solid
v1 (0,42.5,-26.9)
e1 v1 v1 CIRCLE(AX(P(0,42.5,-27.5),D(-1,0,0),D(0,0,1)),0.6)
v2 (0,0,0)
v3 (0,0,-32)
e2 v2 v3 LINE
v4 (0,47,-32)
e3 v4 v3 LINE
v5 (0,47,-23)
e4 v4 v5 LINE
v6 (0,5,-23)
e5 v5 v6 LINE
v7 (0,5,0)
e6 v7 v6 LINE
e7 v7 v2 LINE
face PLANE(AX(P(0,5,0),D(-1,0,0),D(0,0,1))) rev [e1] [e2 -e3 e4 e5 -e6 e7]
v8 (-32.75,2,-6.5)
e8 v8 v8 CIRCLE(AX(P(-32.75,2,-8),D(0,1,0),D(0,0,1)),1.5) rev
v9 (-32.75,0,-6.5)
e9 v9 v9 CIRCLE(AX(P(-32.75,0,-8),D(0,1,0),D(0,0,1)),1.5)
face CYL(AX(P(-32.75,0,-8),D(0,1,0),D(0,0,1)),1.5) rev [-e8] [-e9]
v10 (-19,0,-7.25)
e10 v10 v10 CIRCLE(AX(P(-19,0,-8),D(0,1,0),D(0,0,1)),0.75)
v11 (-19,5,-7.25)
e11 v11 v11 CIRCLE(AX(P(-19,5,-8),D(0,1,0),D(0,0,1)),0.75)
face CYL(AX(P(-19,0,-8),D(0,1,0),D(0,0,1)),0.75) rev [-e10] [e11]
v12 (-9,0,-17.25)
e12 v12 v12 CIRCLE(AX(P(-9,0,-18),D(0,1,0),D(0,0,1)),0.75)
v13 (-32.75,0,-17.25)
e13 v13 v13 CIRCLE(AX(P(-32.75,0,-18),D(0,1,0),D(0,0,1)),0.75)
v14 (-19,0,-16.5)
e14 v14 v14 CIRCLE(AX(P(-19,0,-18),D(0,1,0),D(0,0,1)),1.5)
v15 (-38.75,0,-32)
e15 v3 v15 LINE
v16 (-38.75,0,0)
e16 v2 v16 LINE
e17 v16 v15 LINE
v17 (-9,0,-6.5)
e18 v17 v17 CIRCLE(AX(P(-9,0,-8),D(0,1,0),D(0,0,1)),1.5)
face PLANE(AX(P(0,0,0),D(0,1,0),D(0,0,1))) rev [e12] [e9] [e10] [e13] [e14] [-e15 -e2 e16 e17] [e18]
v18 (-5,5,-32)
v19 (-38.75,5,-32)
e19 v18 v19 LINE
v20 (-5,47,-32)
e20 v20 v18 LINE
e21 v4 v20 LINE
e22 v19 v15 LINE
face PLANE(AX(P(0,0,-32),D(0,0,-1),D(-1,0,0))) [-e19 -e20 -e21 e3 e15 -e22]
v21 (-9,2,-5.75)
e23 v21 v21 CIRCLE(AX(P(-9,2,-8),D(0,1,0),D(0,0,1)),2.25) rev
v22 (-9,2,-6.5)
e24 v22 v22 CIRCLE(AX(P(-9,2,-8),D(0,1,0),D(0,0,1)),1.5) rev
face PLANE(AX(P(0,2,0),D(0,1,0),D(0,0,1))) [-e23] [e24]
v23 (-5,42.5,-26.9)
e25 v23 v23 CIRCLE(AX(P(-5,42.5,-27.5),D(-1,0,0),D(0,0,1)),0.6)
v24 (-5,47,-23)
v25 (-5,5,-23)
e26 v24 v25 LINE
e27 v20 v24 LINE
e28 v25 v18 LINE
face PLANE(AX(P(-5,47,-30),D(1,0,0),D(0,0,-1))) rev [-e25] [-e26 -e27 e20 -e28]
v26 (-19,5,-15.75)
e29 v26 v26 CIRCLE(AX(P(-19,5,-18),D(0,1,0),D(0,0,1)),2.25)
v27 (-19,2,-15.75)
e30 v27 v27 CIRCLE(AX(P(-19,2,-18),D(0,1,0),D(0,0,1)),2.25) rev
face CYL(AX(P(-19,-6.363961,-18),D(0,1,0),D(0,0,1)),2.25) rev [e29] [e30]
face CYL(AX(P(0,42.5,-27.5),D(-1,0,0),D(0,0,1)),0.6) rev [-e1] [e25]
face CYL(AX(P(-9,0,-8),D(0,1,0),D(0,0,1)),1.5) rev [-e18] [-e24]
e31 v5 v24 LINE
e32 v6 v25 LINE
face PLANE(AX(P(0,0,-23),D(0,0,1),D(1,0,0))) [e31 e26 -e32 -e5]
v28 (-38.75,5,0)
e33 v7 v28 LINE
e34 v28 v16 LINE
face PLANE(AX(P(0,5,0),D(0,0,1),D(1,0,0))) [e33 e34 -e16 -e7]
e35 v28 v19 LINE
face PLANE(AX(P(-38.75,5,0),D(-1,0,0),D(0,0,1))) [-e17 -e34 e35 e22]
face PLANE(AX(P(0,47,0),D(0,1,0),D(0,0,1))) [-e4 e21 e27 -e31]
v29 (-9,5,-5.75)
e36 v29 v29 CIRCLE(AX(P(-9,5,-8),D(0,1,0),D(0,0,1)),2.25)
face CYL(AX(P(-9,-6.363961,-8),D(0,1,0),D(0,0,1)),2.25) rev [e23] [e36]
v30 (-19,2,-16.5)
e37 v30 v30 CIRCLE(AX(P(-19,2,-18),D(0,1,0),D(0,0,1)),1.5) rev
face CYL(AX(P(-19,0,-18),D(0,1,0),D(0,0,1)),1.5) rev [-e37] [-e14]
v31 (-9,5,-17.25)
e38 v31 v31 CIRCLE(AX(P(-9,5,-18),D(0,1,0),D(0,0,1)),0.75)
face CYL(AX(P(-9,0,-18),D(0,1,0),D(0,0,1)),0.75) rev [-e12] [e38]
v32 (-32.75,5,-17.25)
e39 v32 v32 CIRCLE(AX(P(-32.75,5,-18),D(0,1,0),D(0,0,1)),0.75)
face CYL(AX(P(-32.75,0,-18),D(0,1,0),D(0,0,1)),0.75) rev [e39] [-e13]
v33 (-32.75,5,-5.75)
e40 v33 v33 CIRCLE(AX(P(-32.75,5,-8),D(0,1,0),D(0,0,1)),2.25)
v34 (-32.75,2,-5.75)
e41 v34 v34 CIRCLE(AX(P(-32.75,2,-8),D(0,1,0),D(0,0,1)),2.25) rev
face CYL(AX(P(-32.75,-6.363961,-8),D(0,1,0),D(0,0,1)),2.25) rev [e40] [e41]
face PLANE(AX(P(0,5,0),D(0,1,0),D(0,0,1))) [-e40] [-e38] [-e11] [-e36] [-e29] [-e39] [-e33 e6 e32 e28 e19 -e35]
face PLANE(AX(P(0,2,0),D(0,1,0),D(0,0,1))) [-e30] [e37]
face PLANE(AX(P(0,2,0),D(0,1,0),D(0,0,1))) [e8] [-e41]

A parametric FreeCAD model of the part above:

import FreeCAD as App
import Part
import Sketcher
from FreeCAD import Vector
Q = App.Units.Quantity


def add_polygon(sketch, points):
    """Adds a closed chain of lines whose ends are joined by coincident constraints."""
    first, n = sketch.GeometryCount, len(points)
    for a, b in zip(points, points[1:] + points[:1]):
        sketch.addGeometry(Part.LineSegment(App.Vector(*a, 0), App.Vector(*b, 0)), False)
    for i in range(n):
        sketch.addConstraint(Sketcher.Constraint("Coincident", first + i, 2, first + (i + 1) % n, 1))

doc = App.newDocument("Part")
params = doc.addObject("Spreadsheet::Sheet", "Params")
for row, (alias, value) in enumerate([
    ("sketch1_height", "30 mm"),
    ("sketch1_width", "38.75 mm"),
    ("pad1_length", "5 mm"),
    ("sketch2_width", "5 mm"),
    ("pad2_length", "47 mm"),
    ("sketch3_diameter", "1.2 mm"),
    ("sketch4_diameter", "3 mm"),
    ("sketch4_diameter2", "1.5 mm"),
    ("sketch5_diameter", "4.5 mm"),
    ("pocket3_length", "3 mm"),
    ("sketch6_width", "5 mm"),
    ("sketch6_height", "42 mm"),
    ("pad3_length", "2 mm"),
    ("sketch7_width", "5 mm"),
    ("sketch7_height", "42 mm"),
    ("sketch7_width2", "33.75 mm"),
    ("pad4_length", "2 mm"),
], start=1):
    params.set(f"A{row}", alias)
    params.set(f"B{row}", "=" + value)
    params.setAlias(f"B{row}", alias)

body = doc.addObject("PartDesign::Body", "Body")

# Sketch on XZ plane
sketch1 = doc.addObject("Sketcher::SketchObject", "Sketch")
body.addObject(sketch1)
sketch1.AttachmentSupport = (doc.XZ_Plane, [""])
sketch1.MapMode = "FlatFace"
add_polygon(sketch1, [(-38.75, -30), (-38.75, 0), (0, 0), (0, -30)])  # lines 0-3
sketch1.addConstraint([
    Sketcher.Constraint("Vertical", 0),
    Sketcher.Constraint("Horizontal", 1),
    Sketcher.Constraint("Vertical", 2),
    Sketcher.Constraint("Horizontal", 3),
    Sketcher.Constraint("Coincident", 1, 2, -1, 1),
    Sketcher.Constraint("DistanceY", 0, 1, 0, 2, Q("30 mm")),
    Sketcher.Constraint("DistanceX", 1, 1, 1, 2, Q("38.75 mm")),
])
sketch1.setExpression("Constraints[9]", "Params.sketch1_height")
sketch1.setExpression("Constraints[10]", "Params.sketch1_width")
pad1 = doc.addObject("PartDesign::Pad", "Pad")
body.addObject(pad1)
pad1.Profile = sketch1
pad1.setExpression("Length", "Params.pad1_length")
pad1.Reversed = True

# Sketch on XZ plane
sketch2 = doc.addObject("Sketcher::SketchObject", "Sketch001")
body.addObject(sketch2)
sketch2.AttachmentSupport = (doc.XZ_Plane, [""])
sketch2.MapMode = "FlatFace"
add_polygon(sketch2, [(-5, -30), (-5, -25), (0, -25), (0, -30)])  # lines 0-3
sketch2.addConstraint([
    Sketcher.Constraint("Vertical", 0),
    Sketcher.Constraint("Horizontal", 1),
    Sketcher.Constraint("Vertical", 2),
    Sketcher.Constraint("Horizontal", 3),
    Sketcher.Constraint("PointOnObject", 1, 2, -2),
    Sketcher.Constraint("Equal", 3, 0),
    Sketcher.Constraint("DistanceX", 1, 1, 1, 2, Q("5 mm")),
    Sketcher.Constraint("DistanceY", 0, 2, -1, 1, Q("25 mm")),
])
sketch2.setExpression("Constraints[10]", "Params.sketch2_width")
pad2 = doc.addObject("PartDesign::Pad", "Pad001")
body.addObject(pad2)
pad2.Profile = sketch2
pad2.setExpression("Length", "Params.pad2_length")
pad2.Reversed = True

# Sketch on YZ plane
sketch3 = doc.addObject("Sketcher::SketchObject", "Sketch002")
body.addObject(sketch3)
sketch3.AttachmentSupport = (doc.YZ_Plane, [""])
sketch3.MapMode = "FlatFace"
sketch3.AttachmentOffset = App.Placement(Vector(0, 0, -5), App.Rotation())
sketch3.addGeometry(Part.Circle(Vector(42.5, -27.5, 0), Vector(0, 0, 1), 0.6), False)
sketch3.addConstraint([
    Sketcher.Constraint("Diameter", 0, Q("1.2 mm")),
    Sketcher.Constraint("DistanceX", -1, 1, 0, 3, Q("42.5 mm")),
    Sketcher.Constraint("DistanceY", 0, 3, -1, 1, Q("27.5 mm")),
])
sketch3.setExpression("Constraints[0]", "Params.sketch3_diameter")
pocket1 = doc.addObject("PartDesign::Pocket", "Pocket")
body.addObject(pocket1)
pocket1.Profile = sketch3
pocket1.Type = "ThroughAll"
pocket1.Reversed = True

# Sketch on XZ plane
sketch4 = doc.addObject("Sketcher::SketchObject", "Sketch003")
body.addObject(sketch4)
sketch4.AttachmentSupport = (doc.XZ_Plane, [""])
sketch4.MapMode = "FlatFace"
sketch4.AttachmentOffset = App.Placement(Vector(0, 0, -5), App.Rotation())
sketch4.addGeometry([
    Part.Circle(Vector(-9, -8, 0), Vector(0, 0, 1), 1.5),  # 0
    Part.Circle(Vector(-32.75, -8, 0), Vector(0, 0, 1), 1.5),  # 1
    Part.Circle(Vector(-19, -18, 0), Vector(0, 0, 1), 1.5),  # 2
    Part.Circle(Vector(-32.75, -18, 0), Vector(0, 0, 1), 0.75),  # 3
    Part.Circle(Vector(-9, -18, 0), Vector(0, 0, 1), 0.75),  # 4
    Part.Circle(Vector(-19, -8, 0), Vector(0, 0, 1), 0.75),  # 5
], False)
sketch4.addConstraint([
    Sketcher.Constraint("Equal", 0, 1),
    Sketcher.Constraint("Equal", 1, 2),
    Sketcher.Constraint("Equal", 3, 4),
    Sketcher.Constraint("Equal", 4, 5),
    Sketcher.Constraint("Horizontal", 0, 3, 1, 3),
    Sketcher.Constraint("Horizontal", 2, 3, 3, 3),
    Sketcher.Constraint("Horizontal", 3, 3, 4, 3),
    Sketcher.Constraint("Horizontal", 1, 3, 5, 3),
    Sketcher.Constraint("Vertical", 1, 3, 3, 3),
    Sketcher.Constraint("Vertical", 0, 3, 4, 3),
    Sketcher.Constraint("Vertical", 2, 3, 5, 3),
    Sketcher.Constraint("Diameter", 0, Q("3 mm")),
    Sketcher.Constraint("Diameter", 3, Q("1.5 mm")),
    Sketcher.Constraint("DistanceX", 0, 3, -1, 1, Q("9 mm")),
    Sketcher.Constraint("DistanceY", 0, 3, -1, 1, Q("8 mm")),
    Sketcher.Constraint("DistanceX", 2, 3, -1, 1, Q("19 mm")),
    Sketcher.Constraint("DistanceY", 2, 3, -1, 1, Q("18 mm")),
    Sketcher.Constraint("DistanceX", 1, 3, -1, 1, Q("32.75 mm")),
])
sketch4.setExpression("Constraints[11]", "Params.sketch4_diameter")
sketch4.setExpression("Constraints[12]", "Params.sketch4_diameter2")
pocket2 = doc.addObject("PartDesign::Pocket", "Pocket001")
body.addObject(pocket2)
pocket2.Profile = sketch4
pocket2.Type = "ThroughAll"
pocket2.Reversed = True

# Sketch on XZ plane
sketch5 = doc.addObject("Sketcher::SketchObject", "Sketch004")
body.addObject(sketch5)
sketch5.AttachmentSupport = (doc.XZ_Plane, [""])
sketch5.MapMode = "FlatFace"
sketch5.AttachmentOffset = App.Placement(Vector(0, 0, -5), App.Rotation())
sketch5.addGeometry([
    Part.Circle(Vector(-19, -18, 0), Vector(0, 0, 1), 2.25),
    Part.Circle(Vector(-32.75, -8, 0), Vector(0, 0, 1), 2.25),
    Part.Circle(Vector(-9, -8, 0), Vector(0, 0, 1), 2.25),
], False)
sketch5.addConstraint([
    Sketcher.Constraint("Equal", 0, 1),
    Sketcher.Constraint("Equal", 1, 2),
    Sketcher.Constraint("Horizontal", 1, 3, 2, 3),
    Sketcher.Constraint("Diameter", 0, Q("4.5 mm")),
    Sketcher.Constraint("DistanceX", 0, 3, -1, 1, Q("19 mm")),
    Sketcher.Constraint("DistanceY", 0, 3, -1, 1, Q("18 mm")),
    Sketcher.Constraint("DistanceY", 1, 3, -1, 1, Q("8 mm")),
    Sketcher.Constraint("DistanceX", 2, 3, -1, 1, Q("9 mm")),
    Sketcher.Constraint("DistanceX", 1, 3, -1, 1, Q("32.75 mm")),
])
sketch5.setExpression("Constraints[3]", "Params.sketch5_diameter")
pocket3 = doc.addObject("PartDesign::Pocket", "Pocket002")
body.addObject(pocket3)
pocket3.Profile = sketch5
pocket3.setExpression("Length", "Params.pocket3_length")
pocket3.Reversed = True

# Sketch on XY plane
sketch6 = doc.addObject("Sketcher::SketchObject", "Sketch005")
body.addObject(sketch6)
sketch6.AttachmentSupport = (doc.XY_Plane, [""])
sketch6.MapMode = "FlatFace"
sketch6.AttachmentOffset = App.Placement(Vector(0, 0, -25), App.Rotation())
add_polygon(sketch6, [(-5, 47), (-5, 5), (0, 5), (0, 47)])  # lines 0-3
sketch6.addConstraint([
    Sketcher.Constraint("Vertical", 0),
    Sketcher.Constraint("Horizontal", 1),
    Sketcher.Constraint("Vertical", 2),
    Sketcher.Constraint("Horizontal", 3),
    Sketcher.Constraint("PointOnObject", 1, 2, -2),
    Sketcher.Constraint("DistanceX", 1, 1, 1, 2, Q("5 mm")),
    Sketcher.Constraint("DistanceY", 0, 2, 0, 1, Q("42 mm")),
    Sketcher.Constraint("DistanceY", -1, 1, 0, 2, Q("5 mm")),
])
sketch6.setExpression("Constraints[9]", "Params.sketch6_width")
sketch6.setExpression("Constraints[10]", "Params.sketch6_height")
pad3 = doc.addObject("PartDesign::Pad", "Pad002")
body.addObject(pad3)
pad3.Profile = sketch6
pad3.setExpression("Length", "Params.pad3_length")

# Sketch on XY plane
sketch7 = doc.addObject("Sketcher::SketchObject", "Sketch006")
body.addObject(sketch7)
sketch7.AttachmentSupport = (doc.XY_Plane, [""])
sketch7.MapMode = "FlatFace"
sketch7.AttachmentOffset = App.Placement(Vector(0, 0, -30), App.Rotation())
add_polygon(sketch7, [(-5, 47), (-5, 5), (-38.75, 5), (-38.75, 0), (0, 0), (0, 47)])  # lines 0-5
sketch7.addConstraint([
    Sketcher.Constraint("Vertical", 0),
    Sketcher.Constraint("Horizontal", 1),
    Sketcher.Constraint("Vertical", 2),
    Sketcher.Constraint("Horizontal", 3),
    Sketcher.Constraint("Vertical", 4),
    Sketcher.Constraint("Horizontal", 5),
    Sketcher.Constraint("Coincident", 3, 2, -1, 1),
    Sketcher.Constraint("Equal", 5, 2),
    Sketcher.Constraint("DistanceX", 5, 2, 5, 1, Q("5 mm")),
    Sketcher.Constraint("DistanceY", 0, 2, 0, 1, Q("42 mm")),
    Sketcher.Constraint("DistanceX", 1, 2, 1, 1, Q("33.75 mm")),
])
sketch7.setExpression("Constraints[14]", "Params.sketch7_width")
sketch7.setExpression("Constraints[15]", "Params.sketch7_height")
sketch7.setExpression("Constraints[16]", "Params.sketch7_width2")
pad4 = doc.addObject("PartDesign::Pad", "Pad003")
body.addObject(pad4)
pad4.Profile = sketch7
pad4.setExpression("Length", "Params.pad4_length")
pad4.Reversed = True

doc.recompute()
